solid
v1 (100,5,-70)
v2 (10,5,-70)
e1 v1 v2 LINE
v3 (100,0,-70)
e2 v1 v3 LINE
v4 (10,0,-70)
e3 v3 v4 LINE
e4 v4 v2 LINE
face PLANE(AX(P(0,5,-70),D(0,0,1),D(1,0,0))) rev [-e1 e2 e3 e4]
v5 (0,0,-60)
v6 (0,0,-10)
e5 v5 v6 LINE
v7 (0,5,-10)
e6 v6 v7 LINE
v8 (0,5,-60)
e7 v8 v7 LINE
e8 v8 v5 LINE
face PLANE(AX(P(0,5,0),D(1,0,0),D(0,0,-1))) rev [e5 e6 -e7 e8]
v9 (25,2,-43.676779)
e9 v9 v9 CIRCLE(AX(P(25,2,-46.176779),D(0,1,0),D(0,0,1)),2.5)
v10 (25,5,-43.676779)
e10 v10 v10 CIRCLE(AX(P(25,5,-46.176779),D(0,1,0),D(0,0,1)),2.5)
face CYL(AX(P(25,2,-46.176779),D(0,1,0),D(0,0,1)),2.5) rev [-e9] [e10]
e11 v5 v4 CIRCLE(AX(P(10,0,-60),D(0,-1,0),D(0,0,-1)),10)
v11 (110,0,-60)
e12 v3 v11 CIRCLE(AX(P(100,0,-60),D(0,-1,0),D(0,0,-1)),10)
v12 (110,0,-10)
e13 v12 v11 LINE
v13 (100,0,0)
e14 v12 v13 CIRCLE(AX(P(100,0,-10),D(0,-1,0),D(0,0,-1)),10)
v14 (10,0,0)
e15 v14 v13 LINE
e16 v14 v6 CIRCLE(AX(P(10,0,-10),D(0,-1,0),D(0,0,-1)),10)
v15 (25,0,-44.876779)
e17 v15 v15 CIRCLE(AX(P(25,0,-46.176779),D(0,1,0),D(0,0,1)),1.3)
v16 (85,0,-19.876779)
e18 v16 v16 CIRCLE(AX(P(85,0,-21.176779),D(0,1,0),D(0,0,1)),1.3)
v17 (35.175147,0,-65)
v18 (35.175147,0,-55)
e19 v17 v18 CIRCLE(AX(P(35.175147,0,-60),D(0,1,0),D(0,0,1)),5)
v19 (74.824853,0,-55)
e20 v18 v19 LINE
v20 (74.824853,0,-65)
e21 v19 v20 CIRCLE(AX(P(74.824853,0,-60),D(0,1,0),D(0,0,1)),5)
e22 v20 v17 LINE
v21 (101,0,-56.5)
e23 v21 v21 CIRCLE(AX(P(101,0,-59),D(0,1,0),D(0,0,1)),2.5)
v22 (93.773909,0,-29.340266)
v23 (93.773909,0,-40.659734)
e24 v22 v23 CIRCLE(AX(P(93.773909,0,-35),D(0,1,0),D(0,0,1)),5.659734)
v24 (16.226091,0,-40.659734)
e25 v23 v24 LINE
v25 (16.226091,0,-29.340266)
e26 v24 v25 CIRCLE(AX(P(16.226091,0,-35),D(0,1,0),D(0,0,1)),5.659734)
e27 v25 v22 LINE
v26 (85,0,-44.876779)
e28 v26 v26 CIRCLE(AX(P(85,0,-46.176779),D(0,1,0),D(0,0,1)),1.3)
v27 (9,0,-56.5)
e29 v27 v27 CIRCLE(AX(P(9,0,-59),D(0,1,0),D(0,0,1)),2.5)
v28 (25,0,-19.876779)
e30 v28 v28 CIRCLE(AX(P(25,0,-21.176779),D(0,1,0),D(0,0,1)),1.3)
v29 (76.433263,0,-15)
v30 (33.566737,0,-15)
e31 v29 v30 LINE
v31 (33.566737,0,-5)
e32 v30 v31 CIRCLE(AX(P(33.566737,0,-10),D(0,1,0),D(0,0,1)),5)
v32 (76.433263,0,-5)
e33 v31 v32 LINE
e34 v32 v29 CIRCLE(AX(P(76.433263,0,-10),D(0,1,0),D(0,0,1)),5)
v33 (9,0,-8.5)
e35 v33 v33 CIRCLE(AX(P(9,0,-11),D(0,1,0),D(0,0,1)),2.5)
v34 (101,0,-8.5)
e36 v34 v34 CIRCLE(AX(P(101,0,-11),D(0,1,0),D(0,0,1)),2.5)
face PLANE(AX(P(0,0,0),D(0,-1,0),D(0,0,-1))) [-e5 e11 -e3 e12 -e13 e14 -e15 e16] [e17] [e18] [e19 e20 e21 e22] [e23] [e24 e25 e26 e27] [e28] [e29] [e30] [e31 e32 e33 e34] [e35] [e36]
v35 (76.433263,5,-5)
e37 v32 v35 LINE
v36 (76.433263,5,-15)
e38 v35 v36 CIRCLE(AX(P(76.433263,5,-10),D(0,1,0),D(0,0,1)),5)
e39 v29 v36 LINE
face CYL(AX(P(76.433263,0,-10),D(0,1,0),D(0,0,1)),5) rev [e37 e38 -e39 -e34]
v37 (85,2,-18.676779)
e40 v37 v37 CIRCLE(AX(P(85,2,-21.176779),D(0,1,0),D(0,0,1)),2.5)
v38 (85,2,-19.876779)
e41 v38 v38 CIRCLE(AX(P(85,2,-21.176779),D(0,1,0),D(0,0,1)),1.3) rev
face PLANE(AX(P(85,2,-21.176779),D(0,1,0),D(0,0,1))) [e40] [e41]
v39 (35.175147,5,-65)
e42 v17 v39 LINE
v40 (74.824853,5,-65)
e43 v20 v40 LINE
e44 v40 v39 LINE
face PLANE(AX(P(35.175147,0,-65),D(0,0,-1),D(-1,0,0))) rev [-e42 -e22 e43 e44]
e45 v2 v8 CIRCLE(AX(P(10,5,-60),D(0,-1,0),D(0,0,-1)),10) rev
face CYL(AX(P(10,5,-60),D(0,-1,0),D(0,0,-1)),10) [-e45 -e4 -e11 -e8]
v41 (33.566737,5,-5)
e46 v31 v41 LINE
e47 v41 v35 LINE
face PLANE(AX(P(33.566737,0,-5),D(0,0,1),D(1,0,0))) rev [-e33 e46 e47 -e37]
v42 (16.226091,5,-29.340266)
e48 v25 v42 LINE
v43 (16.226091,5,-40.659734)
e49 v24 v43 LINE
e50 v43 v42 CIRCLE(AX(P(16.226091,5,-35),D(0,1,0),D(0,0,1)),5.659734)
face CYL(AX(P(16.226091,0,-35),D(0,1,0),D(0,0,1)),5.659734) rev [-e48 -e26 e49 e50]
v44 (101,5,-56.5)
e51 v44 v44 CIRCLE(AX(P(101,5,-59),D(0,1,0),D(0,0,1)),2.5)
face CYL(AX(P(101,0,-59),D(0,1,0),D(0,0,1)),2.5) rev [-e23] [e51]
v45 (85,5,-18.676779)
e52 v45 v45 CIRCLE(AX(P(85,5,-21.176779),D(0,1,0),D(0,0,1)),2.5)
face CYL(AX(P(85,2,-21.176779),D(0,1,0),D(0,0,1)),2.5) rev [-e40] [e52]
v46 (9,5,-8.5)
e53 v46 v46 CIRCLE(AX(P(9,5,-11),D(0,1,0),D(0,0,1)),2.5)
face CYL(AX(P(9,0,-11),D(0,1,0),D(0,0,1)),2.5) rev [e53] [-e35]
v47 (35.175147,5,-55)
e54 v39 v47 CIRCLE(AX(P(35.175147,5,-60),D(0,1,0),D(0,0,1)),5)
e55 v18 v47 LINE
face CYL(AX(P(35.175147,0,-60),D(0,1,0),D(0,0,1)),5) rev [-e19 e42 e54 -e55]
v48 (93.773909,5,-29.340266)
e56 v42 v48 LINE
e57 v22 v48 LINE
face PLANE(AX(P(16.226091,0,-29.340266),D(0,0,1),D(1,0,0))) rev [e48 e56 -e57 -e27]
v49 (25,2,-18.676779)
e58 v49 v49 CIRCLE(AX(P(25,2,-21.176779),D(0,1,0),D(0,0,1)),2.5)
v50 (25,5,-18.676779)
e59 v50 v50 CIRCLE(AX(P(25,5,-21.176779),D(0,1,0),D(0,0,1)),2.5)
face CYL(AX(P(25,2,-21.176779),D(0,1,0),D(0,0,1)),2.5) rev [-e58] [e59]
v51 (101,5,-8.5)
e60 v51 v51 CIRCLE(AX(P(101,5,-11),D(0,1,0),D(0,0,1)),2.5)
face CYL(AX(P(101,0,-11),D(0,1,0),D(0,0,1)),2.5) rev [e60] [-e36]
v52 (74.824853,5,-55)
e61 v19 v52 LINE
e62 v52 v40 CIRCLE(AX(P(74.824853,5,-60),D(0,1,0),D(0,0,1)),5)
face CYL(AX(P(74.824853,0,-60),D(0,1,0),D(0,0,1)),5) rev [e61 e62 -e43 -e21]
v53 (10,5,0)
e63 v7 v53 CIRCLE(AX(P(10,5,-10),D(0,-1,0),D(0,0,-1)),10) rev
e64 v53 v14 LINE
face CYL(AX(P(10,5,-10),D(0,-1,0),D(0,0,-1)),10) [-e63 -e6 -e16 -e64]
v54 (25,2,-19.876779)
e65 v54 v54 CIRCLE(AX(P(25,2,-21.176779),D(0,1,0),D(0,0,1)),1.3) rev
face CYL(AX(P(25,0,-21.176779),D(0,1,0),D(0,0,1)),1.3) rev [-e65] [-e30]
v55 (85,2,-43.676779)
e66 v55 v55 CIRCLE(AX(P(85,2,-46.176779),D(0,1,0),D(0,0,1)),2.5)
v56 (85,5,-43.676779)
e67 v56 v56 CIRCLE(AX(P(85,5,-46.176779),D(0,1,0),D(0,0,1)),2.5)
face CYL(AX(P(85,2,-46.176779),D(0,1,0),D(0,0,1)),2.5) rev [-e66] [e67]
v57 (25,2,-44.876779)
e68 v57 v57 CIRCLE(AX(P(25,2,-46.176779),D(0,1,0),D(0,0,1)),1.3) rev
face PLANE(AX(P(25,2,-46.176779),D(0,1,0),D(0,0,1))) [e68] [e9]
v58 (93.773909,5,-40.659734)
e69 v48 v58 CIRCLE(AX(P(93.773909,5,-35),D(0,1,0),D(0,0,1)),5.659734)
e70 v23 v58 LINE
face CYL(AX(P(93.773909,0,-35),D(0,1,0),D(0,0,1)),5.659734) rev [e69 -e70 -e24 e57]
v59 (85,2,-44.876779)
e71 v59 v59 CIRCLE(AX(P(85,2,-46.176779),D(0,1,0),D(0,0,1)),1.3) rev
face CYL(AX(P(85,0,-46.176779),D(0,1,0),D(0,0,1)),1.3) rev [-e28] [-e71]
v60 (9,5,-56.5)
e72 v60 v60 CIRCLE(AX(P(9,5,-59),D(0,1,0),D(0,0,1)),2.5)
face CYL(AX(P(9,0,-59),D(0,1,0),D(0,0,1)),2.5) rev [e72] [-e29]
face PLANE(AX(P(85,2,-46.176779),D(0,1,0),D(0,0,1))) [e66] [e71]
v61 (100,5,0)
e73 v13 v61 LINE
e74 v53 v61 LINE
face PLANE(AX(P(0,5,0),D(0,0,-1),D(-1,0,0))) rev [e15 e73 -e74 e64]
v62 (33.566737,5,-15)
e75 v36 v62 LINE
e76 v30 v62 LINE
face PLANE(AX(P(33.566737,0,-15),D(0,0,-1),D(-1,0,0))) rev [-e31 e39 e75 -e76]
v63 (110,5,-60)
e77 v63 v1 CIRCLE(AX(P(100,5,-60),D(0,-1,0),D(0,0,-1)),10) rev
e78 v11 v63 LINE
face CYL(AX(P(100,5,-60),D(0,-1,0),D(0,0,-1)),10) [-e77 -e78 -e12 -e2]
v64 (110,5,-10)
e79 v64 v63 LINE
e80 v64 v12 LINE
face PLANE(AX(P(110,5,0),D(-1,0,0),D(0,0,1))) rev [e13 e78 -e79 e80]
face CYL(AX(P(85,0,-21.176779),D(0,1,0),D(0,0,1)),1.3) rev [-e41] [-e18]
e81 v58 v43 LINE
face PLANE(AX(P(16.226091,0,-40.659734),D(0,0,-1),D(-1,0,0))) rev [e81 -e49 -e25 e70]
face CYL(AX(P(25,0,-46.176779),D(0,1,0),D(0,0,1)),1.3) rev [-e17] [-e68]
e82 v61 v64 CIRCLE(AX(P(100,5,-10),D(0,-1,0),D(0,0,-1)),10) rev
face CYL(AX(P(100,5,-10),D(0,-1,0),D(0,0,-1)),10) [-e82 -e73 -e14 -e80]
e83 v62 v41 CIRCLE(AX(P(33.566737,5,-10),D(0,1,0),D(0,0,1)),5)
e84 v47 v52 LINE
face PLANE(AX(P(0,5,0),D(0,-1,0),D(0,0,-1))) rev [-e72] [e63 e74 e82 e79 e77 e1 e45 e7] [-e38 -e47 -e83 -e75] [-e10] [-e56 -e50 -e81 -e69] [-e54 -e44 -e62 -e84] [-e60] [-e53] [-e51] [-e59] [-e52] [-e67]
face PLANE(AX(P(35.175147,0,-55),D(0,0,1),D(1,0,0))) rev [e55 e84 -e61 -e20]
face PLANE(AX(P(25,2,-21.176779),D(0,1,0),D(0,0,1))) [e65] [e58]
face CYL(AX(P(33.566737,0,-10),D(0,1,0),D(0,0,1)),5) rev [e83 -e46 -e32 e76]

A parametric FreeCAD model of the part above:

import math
import FreeCAD as App
import Part
import Sketcher


def edges_at(feature, points):
    """Names of the edges that pass closest to the given points."""
    edges = feature.Shape.Edges
    near = lambda p: min(range(len(edges)), key=lambda i: edges[i].distToShape(Part.Vertex(*p))[0])
    return sorted({f"Edge{near(p) + 1}" for p in points})

doc = App.newDocument("Part")
body = doc.addObject("PartDesign::Body", "Body")

# Sketch on XZ plane
sketch1 = body.newObject("Sketcher::SketchObject", "Sketch")
sketch1.AttachmentSupport = (doc.getObject("XZ_Plane"), [""])
sketch1.MapMode = "FlatFace"
sketch1.addGeometry([
    Part.LineSegment(App.Vector(0, -70, 0), App.Vector(0, 0, 0)),
    Part.LineSegment(App.Vector(0, 0, 0), App.Vector(110, 0, 0)),
    Part.LineSegment(App.Vector(110, 0, 0), App.Vector(110, -70, 0)),
    Part.LineSegment(App.Vector(110, -70, 0), App.Vector(0, -70, 0)),
], False)
sketch1.addConstraint([
    Sketcher.Constraint("Coincident", 0, 2, 1, 1),
    Sketcher.Constraint("Coincident", 1, 2, 2, 1),
    Sketcher.Constraint("Coincident", 2, 2, 3, 1),
    Sketcher.Constraint("Coincident", 3, 2, 0, 1),
    Sketcher.Constraint("Vertical", 0),
    Sketcher.Constraint("Horizontal", 1),
    Sketcher.Constraint("Vertical", 2),
    Sketcher.Constraint("Horizontal", 3),
    Sketcher.Constraint("Coincident", 0, 2, -1, 1),
    Sketcher.Constraint("DistanceX", 1, 1, 1, 2, 110.0),
    Sketcher.Constraint("DistanceY", 0, 1, 0, 2, 70.0),
])
pad1 = body.newObject("PartDesign::Pad", "Pad")
pad1.Profile = sketch1
pad1.Length = 5
pad1.Reversed = True

# Sketch on XZ plane
sketch2 = body.newObject("Sketcher::SketchObject", "Sketch001")
sketch2.AttachmentSupport = (doc.getObject("XZ_Plane"), [""])
sketch2.MapMode = "FlatFace"
sketch2.AttachmentOffset = App.Placement(App.Vector(0, 0, -5), App.Rotation())
sketch2.addGeometry([
    Part.Circle(App.Vector(9, -59, 0), App.Vector(0, 0, 1), 2.5),  # 0
    Part.Circle(App.Vector(9, -11, 0), App.Vector(0, 0, 1), 2.5),  # 1
    Part.Circle(App.Vector(101, -11, 0), App.Vector(0, 0, 1), 2.5),  # 2
    Part.Circle(App.Vector(101, -59, 0), App.Vector(0, 0, 1), 2.5),  # 3
    Part.Circle(App.Vector(25, -46.2, 0), App.Vector(0, 0, 1), 1.3),  # 4
    Part.Circle(App.Vector(25, -21.2, 0), App.Vector(0, 0, 1), 1.3),  # 5
    Part.Circle(App.Vector(85, -21.2, 0), App.Vector(0, 0, 1), 1.3),  # 6
    Part.Circle(App.Vector(85, -46.2, 0), App.Vector(0, 0, 1), 1.3),  # 7
], False)
sketch2.addConstraint([
    Sketcher.Constraint("Equal", 0, 1),
    Sketcher.Constraint("Equal", 1, 2),
    Sketcher.Constraint("Equal", 2, 3),
    Sketcher.Constraint("Equal", 4, 5),
    Sketcher.Constraint("Equal", 5, 6),
    Sketcher.Constraint("Equal", 6, 7),
    Sketcher.Constraint("Horizontal", 1, 3, 2, 3),
    Sketcher.Constraint("Horizontal", 0, 3, 3, 3),
    Sketcher.Constraint("Horizontal", 5, 3, 6, 3),
    Sketcher.Constraint("Horizontal", 4, 3, 7, 3),
    Sketcher.Constraint("Vertical", 0, 3, 1, 3),
    Sketcher.Constraint("Vertical", 2, 3, 3, 3),
    Sketcher.Constraint("Vertical", 4, 3, 5, 3),
    Sketcher.Constraint("Vertical", 6, 3, 7, 3),
    Sketcher.Constraint("Diameter", 0, 5.0),
    Sketcher.Constraint("Diameter", 4, 2.6),
    Sketcher.Constraint("DistanceX", -1, 1, 0, 3, 9.0),
    Sketcher.Constraint("DistanceY", 0, 3, -1, 1, 59.0),
    Sketcher.Constraint("DistanceY", 1, 3, -1, 1, 11.0),
    Sketcher.Constraint("DistanceX", -1, 1, 2, 3, 101.0),
    Sketcher.Constraint("DistanceX", -1, 1, 4, 3, 25.0),
    Sketcher.Constraint("DistanceX", -1, 1, 6, 3, 85.0),
    Sketcher.Constraint("DistanceY", 4, 3, 5, 3, 25.0),
    Sketcher.Constraint("DistanceY", 4, 3, -1, 1, 46.176779),
])
pocket1 = body.newObject("PartDesign::Pocket", "Pocket")
pocket1.Profile = sketch2
pocket1.Type = "ThroughAll"
pocket1.Reversed = True

# Sketch on XZ plane
sketch3 = body.newObject("Sketcher::SketchObject", "Sketch002")
sketch3.AttachmentSupport = (doc.getObject("XZ_Plane"), [""])
sketch3.MapMode = "FlatFace"
sketch3.AttachmentOffset = App.Placement(App.Vector(0, 0, -5), App.Rotation())
sketch3.addGeometry([
    Part.Circle(App.Vector(25, -46.2, 0), App.Vector(0, 0, 1), 2.5),
    Part.Circle(App.Vector(25, -21.2, 0), App.Vector(0, 0, 1), 2.5),
    Part.Circle(App.Vector(85, -21.2, 0), App.Vector(0, 0, 1), 2.5),
    Part.Circle(App.Vector(85, -46.2, 0), App.Vector(0, 0, 1), 2.5),
], False)
sketch3.addConstraint([
    Sketcher.Constraint("Equal", 0, 1),
    Sketcher.Constraint("Equal", 1, 2),
    Sketcher.Constraint("Equal", 2, 3),
    Sketcher.Constraint("Horizontal", 1, 3, 2, 3),
    Sketcher.Constraint("Horizontal", 0, 3, 3, 3),
    Sketcher.Constraint("Vertical", 0, 3, 1, 3),
    Sketcher.Constraint("Vertical", 2, 3, 3, 3),
    Sketcher.Constraint("Diameter", 0, 5.0),
    Sketcher.Constraint("DistanceX", -1, 1, 0, 3, 25.0),
    Sketcher.Constraint("DistanceX", -1, 1, 2, 3, 85.0),
    Sketcher.Constraint("DistanceY", 0, 3, 1, 3, 25.0),
    Sketcher.Constraint("DistanceY", 0, 3, -1, 1, 46.176779),
])
pocket2 = body.newObject("PartDesign::Pocket", "Pocket001")
pocket2.Profile = sketch3
pocket2.Length = 3
pocket2.Reversed = True

# Sketch on XZ plane
sketch4 = body.newObject("Sketcher::SketchObject", "Sketch003")
sketch4.AttachmentSupport = (doc.getObject("XZ_Plane"), [""])
sketch4.MapMode = "FlatFace"
sketch4.AttachmentOffset = App.Placement(App.Vector(0, 0, -5), App.Rotation())
sketch4.addGeometry([
    Part.LineSegment(App.Vector(75, -65, 0), App.Vector(35, -65, 0)),  # 0
    Part.ArcOfCircle(Part.Circle(App.Vector(35, -60, 0), App.Vector(0, 0, 1), 5), math.radians(90), math.radians(270)),  # 1
    Part.LineSegment(App.Vector(35, -55, 0), App.Vector(75, -55, 0)),  # 2
    Part.ArcOfCircle(Part.Circle(App.Vector(75, -60, 0), App.Vector(0, 0, 1), 5), math.radians(-90), math.radians(90)),  # 3
    Part.LineSegment(App.Vector(94, -41, 0), App.Vector(16, -41, 0)),  # 4
    Part.ArcOfCircle(Part.Circle(App.Vector(16, -35, 0), App.Vector(0, 0, 1), 6), math.radians(90), math.radians(270)),  # 5
    Part.LineSegment(App.Vector(16, -29, 0), App.Vector(94, -29, 0)),  # 6
    Part.ArcOfCircle(Part.Circle(App.Vector(94, -35, 0), App.Vector(0, 0, 1), 6), math.radians(-90), math.radians(90)),  # 7
    Part.LineSegment(App.Vector(76, -15, 0), App.Vector(34, -15, 0)),  # 8
    Part.ArcOfCircle(Part.Circle(App.Vector(34, -10, 0), App.Vector(0, 0, 1), 5), math.radians(90), math.radians(270)),  # 9
    Part.LineSegment(App.Vector(34, -5, 0), App.Vector(76, -5, 0)),  # 10
    Part.ArcOfCircle(Part.Circle(App.Vector(76, -10, 0), App.Vector(0, 0, 1), 5), math.radians(-90), math.radians(90)),  # 11
], False)
sketch4.addConstraint([
    Sketcher.Constraint("Tangent", 0, 2, 1, 2),
    Sketcher.Constraint("Tangent", 1, 1, 2, 1),
    Sketcher.Constraint("Tangent", 2, 2, 3, 2),
    Sketcher.Constraint("Tangent", 3, 1, 0, 1),
    Sketcher.Constraint("Tangent", 4, 2, 5, 2),
    Sketcher.Constraint("Tangent", 5, 1, 6, 1),
    Sketcher.Constraint("Tangent", 6, 2, 7, 2),
    Sketcher.Constraint("Tangent", 7, 1, 4, 1),
    Sketcher.Constraint("Tangent", 8, 2, 9, 2),
    Sketcher.Constraint("Tangent", 9, 1, 10, 1),
    Sketcher.Constraint("Tangent", 10, 2, 11, 2),
    Sketcher.Constraint("Tangent", 11, 1, 8, 1),
    Sketcher.Constraint("Horizontal", 0),
    Sketcher.Constraint("Horizontal", 2),
    Sketcher.Constraint("Horizontal", 4),
    Sketcher.Constraint("Horizontal", 6),
    Sketcher.Constraint("Horizontal", 8),
    Sketcher.Constraint("Horizontal", 10),
    Sketcher.Constraint("Equal", 3, 9),
    Sketcher.Constraint("Radius", 1, 5.0),
    Sketcher.Constraint("DistanceY", 1, 3, -1, 1, 60.0),
    Sketcher.Constraint("DistanceY", 5, 3, -1, 1, 35.0),
    Sketcher.Constraint("DistanceY", 9, 3, -1, 1, 10.0),
    Sketcher.Constraint("Radius", 5, 5.659734),
    Sketcher.Constraint("DistanceX", 4, 2, 4, 1, 77.547819),
    Sketcher.Constraint("DistanceX", 0, 2, 0, 1, 39.649706),
    Sketcher.Constraint("DistanceX", 8, 2, 8, 1, 42.866526),
    Sketcher.Constraint("DistanceX", -1, 1, 5, 3, 16.226091),
    Sketcher.Constraint("DistanceX", 9, 3, 1, 3, 1.60841),
    Sketcher.Constraint("DistanceX", -1, 1, 1, 3, 35.175147),
])
pocket3 = body.newObject("PartDesign::Pocket", "Pocket002")
pocket3.Profile = sketch4
pocket3.Type = "ThroughAll"
pocket3.Reversed = True
doc.recompute()

fillet = body.newObject("PartDesign::Fillet", "Fillet")
fillet.Base = (pocket3, edges_at(pocket3, [
    (0, 2.5, -70),
    (110, 2.5, -70),
    (110, 2.5, 0),
    (0, 2.5, 0),
]))
fillet.Radius = 10

doc.recompute()
